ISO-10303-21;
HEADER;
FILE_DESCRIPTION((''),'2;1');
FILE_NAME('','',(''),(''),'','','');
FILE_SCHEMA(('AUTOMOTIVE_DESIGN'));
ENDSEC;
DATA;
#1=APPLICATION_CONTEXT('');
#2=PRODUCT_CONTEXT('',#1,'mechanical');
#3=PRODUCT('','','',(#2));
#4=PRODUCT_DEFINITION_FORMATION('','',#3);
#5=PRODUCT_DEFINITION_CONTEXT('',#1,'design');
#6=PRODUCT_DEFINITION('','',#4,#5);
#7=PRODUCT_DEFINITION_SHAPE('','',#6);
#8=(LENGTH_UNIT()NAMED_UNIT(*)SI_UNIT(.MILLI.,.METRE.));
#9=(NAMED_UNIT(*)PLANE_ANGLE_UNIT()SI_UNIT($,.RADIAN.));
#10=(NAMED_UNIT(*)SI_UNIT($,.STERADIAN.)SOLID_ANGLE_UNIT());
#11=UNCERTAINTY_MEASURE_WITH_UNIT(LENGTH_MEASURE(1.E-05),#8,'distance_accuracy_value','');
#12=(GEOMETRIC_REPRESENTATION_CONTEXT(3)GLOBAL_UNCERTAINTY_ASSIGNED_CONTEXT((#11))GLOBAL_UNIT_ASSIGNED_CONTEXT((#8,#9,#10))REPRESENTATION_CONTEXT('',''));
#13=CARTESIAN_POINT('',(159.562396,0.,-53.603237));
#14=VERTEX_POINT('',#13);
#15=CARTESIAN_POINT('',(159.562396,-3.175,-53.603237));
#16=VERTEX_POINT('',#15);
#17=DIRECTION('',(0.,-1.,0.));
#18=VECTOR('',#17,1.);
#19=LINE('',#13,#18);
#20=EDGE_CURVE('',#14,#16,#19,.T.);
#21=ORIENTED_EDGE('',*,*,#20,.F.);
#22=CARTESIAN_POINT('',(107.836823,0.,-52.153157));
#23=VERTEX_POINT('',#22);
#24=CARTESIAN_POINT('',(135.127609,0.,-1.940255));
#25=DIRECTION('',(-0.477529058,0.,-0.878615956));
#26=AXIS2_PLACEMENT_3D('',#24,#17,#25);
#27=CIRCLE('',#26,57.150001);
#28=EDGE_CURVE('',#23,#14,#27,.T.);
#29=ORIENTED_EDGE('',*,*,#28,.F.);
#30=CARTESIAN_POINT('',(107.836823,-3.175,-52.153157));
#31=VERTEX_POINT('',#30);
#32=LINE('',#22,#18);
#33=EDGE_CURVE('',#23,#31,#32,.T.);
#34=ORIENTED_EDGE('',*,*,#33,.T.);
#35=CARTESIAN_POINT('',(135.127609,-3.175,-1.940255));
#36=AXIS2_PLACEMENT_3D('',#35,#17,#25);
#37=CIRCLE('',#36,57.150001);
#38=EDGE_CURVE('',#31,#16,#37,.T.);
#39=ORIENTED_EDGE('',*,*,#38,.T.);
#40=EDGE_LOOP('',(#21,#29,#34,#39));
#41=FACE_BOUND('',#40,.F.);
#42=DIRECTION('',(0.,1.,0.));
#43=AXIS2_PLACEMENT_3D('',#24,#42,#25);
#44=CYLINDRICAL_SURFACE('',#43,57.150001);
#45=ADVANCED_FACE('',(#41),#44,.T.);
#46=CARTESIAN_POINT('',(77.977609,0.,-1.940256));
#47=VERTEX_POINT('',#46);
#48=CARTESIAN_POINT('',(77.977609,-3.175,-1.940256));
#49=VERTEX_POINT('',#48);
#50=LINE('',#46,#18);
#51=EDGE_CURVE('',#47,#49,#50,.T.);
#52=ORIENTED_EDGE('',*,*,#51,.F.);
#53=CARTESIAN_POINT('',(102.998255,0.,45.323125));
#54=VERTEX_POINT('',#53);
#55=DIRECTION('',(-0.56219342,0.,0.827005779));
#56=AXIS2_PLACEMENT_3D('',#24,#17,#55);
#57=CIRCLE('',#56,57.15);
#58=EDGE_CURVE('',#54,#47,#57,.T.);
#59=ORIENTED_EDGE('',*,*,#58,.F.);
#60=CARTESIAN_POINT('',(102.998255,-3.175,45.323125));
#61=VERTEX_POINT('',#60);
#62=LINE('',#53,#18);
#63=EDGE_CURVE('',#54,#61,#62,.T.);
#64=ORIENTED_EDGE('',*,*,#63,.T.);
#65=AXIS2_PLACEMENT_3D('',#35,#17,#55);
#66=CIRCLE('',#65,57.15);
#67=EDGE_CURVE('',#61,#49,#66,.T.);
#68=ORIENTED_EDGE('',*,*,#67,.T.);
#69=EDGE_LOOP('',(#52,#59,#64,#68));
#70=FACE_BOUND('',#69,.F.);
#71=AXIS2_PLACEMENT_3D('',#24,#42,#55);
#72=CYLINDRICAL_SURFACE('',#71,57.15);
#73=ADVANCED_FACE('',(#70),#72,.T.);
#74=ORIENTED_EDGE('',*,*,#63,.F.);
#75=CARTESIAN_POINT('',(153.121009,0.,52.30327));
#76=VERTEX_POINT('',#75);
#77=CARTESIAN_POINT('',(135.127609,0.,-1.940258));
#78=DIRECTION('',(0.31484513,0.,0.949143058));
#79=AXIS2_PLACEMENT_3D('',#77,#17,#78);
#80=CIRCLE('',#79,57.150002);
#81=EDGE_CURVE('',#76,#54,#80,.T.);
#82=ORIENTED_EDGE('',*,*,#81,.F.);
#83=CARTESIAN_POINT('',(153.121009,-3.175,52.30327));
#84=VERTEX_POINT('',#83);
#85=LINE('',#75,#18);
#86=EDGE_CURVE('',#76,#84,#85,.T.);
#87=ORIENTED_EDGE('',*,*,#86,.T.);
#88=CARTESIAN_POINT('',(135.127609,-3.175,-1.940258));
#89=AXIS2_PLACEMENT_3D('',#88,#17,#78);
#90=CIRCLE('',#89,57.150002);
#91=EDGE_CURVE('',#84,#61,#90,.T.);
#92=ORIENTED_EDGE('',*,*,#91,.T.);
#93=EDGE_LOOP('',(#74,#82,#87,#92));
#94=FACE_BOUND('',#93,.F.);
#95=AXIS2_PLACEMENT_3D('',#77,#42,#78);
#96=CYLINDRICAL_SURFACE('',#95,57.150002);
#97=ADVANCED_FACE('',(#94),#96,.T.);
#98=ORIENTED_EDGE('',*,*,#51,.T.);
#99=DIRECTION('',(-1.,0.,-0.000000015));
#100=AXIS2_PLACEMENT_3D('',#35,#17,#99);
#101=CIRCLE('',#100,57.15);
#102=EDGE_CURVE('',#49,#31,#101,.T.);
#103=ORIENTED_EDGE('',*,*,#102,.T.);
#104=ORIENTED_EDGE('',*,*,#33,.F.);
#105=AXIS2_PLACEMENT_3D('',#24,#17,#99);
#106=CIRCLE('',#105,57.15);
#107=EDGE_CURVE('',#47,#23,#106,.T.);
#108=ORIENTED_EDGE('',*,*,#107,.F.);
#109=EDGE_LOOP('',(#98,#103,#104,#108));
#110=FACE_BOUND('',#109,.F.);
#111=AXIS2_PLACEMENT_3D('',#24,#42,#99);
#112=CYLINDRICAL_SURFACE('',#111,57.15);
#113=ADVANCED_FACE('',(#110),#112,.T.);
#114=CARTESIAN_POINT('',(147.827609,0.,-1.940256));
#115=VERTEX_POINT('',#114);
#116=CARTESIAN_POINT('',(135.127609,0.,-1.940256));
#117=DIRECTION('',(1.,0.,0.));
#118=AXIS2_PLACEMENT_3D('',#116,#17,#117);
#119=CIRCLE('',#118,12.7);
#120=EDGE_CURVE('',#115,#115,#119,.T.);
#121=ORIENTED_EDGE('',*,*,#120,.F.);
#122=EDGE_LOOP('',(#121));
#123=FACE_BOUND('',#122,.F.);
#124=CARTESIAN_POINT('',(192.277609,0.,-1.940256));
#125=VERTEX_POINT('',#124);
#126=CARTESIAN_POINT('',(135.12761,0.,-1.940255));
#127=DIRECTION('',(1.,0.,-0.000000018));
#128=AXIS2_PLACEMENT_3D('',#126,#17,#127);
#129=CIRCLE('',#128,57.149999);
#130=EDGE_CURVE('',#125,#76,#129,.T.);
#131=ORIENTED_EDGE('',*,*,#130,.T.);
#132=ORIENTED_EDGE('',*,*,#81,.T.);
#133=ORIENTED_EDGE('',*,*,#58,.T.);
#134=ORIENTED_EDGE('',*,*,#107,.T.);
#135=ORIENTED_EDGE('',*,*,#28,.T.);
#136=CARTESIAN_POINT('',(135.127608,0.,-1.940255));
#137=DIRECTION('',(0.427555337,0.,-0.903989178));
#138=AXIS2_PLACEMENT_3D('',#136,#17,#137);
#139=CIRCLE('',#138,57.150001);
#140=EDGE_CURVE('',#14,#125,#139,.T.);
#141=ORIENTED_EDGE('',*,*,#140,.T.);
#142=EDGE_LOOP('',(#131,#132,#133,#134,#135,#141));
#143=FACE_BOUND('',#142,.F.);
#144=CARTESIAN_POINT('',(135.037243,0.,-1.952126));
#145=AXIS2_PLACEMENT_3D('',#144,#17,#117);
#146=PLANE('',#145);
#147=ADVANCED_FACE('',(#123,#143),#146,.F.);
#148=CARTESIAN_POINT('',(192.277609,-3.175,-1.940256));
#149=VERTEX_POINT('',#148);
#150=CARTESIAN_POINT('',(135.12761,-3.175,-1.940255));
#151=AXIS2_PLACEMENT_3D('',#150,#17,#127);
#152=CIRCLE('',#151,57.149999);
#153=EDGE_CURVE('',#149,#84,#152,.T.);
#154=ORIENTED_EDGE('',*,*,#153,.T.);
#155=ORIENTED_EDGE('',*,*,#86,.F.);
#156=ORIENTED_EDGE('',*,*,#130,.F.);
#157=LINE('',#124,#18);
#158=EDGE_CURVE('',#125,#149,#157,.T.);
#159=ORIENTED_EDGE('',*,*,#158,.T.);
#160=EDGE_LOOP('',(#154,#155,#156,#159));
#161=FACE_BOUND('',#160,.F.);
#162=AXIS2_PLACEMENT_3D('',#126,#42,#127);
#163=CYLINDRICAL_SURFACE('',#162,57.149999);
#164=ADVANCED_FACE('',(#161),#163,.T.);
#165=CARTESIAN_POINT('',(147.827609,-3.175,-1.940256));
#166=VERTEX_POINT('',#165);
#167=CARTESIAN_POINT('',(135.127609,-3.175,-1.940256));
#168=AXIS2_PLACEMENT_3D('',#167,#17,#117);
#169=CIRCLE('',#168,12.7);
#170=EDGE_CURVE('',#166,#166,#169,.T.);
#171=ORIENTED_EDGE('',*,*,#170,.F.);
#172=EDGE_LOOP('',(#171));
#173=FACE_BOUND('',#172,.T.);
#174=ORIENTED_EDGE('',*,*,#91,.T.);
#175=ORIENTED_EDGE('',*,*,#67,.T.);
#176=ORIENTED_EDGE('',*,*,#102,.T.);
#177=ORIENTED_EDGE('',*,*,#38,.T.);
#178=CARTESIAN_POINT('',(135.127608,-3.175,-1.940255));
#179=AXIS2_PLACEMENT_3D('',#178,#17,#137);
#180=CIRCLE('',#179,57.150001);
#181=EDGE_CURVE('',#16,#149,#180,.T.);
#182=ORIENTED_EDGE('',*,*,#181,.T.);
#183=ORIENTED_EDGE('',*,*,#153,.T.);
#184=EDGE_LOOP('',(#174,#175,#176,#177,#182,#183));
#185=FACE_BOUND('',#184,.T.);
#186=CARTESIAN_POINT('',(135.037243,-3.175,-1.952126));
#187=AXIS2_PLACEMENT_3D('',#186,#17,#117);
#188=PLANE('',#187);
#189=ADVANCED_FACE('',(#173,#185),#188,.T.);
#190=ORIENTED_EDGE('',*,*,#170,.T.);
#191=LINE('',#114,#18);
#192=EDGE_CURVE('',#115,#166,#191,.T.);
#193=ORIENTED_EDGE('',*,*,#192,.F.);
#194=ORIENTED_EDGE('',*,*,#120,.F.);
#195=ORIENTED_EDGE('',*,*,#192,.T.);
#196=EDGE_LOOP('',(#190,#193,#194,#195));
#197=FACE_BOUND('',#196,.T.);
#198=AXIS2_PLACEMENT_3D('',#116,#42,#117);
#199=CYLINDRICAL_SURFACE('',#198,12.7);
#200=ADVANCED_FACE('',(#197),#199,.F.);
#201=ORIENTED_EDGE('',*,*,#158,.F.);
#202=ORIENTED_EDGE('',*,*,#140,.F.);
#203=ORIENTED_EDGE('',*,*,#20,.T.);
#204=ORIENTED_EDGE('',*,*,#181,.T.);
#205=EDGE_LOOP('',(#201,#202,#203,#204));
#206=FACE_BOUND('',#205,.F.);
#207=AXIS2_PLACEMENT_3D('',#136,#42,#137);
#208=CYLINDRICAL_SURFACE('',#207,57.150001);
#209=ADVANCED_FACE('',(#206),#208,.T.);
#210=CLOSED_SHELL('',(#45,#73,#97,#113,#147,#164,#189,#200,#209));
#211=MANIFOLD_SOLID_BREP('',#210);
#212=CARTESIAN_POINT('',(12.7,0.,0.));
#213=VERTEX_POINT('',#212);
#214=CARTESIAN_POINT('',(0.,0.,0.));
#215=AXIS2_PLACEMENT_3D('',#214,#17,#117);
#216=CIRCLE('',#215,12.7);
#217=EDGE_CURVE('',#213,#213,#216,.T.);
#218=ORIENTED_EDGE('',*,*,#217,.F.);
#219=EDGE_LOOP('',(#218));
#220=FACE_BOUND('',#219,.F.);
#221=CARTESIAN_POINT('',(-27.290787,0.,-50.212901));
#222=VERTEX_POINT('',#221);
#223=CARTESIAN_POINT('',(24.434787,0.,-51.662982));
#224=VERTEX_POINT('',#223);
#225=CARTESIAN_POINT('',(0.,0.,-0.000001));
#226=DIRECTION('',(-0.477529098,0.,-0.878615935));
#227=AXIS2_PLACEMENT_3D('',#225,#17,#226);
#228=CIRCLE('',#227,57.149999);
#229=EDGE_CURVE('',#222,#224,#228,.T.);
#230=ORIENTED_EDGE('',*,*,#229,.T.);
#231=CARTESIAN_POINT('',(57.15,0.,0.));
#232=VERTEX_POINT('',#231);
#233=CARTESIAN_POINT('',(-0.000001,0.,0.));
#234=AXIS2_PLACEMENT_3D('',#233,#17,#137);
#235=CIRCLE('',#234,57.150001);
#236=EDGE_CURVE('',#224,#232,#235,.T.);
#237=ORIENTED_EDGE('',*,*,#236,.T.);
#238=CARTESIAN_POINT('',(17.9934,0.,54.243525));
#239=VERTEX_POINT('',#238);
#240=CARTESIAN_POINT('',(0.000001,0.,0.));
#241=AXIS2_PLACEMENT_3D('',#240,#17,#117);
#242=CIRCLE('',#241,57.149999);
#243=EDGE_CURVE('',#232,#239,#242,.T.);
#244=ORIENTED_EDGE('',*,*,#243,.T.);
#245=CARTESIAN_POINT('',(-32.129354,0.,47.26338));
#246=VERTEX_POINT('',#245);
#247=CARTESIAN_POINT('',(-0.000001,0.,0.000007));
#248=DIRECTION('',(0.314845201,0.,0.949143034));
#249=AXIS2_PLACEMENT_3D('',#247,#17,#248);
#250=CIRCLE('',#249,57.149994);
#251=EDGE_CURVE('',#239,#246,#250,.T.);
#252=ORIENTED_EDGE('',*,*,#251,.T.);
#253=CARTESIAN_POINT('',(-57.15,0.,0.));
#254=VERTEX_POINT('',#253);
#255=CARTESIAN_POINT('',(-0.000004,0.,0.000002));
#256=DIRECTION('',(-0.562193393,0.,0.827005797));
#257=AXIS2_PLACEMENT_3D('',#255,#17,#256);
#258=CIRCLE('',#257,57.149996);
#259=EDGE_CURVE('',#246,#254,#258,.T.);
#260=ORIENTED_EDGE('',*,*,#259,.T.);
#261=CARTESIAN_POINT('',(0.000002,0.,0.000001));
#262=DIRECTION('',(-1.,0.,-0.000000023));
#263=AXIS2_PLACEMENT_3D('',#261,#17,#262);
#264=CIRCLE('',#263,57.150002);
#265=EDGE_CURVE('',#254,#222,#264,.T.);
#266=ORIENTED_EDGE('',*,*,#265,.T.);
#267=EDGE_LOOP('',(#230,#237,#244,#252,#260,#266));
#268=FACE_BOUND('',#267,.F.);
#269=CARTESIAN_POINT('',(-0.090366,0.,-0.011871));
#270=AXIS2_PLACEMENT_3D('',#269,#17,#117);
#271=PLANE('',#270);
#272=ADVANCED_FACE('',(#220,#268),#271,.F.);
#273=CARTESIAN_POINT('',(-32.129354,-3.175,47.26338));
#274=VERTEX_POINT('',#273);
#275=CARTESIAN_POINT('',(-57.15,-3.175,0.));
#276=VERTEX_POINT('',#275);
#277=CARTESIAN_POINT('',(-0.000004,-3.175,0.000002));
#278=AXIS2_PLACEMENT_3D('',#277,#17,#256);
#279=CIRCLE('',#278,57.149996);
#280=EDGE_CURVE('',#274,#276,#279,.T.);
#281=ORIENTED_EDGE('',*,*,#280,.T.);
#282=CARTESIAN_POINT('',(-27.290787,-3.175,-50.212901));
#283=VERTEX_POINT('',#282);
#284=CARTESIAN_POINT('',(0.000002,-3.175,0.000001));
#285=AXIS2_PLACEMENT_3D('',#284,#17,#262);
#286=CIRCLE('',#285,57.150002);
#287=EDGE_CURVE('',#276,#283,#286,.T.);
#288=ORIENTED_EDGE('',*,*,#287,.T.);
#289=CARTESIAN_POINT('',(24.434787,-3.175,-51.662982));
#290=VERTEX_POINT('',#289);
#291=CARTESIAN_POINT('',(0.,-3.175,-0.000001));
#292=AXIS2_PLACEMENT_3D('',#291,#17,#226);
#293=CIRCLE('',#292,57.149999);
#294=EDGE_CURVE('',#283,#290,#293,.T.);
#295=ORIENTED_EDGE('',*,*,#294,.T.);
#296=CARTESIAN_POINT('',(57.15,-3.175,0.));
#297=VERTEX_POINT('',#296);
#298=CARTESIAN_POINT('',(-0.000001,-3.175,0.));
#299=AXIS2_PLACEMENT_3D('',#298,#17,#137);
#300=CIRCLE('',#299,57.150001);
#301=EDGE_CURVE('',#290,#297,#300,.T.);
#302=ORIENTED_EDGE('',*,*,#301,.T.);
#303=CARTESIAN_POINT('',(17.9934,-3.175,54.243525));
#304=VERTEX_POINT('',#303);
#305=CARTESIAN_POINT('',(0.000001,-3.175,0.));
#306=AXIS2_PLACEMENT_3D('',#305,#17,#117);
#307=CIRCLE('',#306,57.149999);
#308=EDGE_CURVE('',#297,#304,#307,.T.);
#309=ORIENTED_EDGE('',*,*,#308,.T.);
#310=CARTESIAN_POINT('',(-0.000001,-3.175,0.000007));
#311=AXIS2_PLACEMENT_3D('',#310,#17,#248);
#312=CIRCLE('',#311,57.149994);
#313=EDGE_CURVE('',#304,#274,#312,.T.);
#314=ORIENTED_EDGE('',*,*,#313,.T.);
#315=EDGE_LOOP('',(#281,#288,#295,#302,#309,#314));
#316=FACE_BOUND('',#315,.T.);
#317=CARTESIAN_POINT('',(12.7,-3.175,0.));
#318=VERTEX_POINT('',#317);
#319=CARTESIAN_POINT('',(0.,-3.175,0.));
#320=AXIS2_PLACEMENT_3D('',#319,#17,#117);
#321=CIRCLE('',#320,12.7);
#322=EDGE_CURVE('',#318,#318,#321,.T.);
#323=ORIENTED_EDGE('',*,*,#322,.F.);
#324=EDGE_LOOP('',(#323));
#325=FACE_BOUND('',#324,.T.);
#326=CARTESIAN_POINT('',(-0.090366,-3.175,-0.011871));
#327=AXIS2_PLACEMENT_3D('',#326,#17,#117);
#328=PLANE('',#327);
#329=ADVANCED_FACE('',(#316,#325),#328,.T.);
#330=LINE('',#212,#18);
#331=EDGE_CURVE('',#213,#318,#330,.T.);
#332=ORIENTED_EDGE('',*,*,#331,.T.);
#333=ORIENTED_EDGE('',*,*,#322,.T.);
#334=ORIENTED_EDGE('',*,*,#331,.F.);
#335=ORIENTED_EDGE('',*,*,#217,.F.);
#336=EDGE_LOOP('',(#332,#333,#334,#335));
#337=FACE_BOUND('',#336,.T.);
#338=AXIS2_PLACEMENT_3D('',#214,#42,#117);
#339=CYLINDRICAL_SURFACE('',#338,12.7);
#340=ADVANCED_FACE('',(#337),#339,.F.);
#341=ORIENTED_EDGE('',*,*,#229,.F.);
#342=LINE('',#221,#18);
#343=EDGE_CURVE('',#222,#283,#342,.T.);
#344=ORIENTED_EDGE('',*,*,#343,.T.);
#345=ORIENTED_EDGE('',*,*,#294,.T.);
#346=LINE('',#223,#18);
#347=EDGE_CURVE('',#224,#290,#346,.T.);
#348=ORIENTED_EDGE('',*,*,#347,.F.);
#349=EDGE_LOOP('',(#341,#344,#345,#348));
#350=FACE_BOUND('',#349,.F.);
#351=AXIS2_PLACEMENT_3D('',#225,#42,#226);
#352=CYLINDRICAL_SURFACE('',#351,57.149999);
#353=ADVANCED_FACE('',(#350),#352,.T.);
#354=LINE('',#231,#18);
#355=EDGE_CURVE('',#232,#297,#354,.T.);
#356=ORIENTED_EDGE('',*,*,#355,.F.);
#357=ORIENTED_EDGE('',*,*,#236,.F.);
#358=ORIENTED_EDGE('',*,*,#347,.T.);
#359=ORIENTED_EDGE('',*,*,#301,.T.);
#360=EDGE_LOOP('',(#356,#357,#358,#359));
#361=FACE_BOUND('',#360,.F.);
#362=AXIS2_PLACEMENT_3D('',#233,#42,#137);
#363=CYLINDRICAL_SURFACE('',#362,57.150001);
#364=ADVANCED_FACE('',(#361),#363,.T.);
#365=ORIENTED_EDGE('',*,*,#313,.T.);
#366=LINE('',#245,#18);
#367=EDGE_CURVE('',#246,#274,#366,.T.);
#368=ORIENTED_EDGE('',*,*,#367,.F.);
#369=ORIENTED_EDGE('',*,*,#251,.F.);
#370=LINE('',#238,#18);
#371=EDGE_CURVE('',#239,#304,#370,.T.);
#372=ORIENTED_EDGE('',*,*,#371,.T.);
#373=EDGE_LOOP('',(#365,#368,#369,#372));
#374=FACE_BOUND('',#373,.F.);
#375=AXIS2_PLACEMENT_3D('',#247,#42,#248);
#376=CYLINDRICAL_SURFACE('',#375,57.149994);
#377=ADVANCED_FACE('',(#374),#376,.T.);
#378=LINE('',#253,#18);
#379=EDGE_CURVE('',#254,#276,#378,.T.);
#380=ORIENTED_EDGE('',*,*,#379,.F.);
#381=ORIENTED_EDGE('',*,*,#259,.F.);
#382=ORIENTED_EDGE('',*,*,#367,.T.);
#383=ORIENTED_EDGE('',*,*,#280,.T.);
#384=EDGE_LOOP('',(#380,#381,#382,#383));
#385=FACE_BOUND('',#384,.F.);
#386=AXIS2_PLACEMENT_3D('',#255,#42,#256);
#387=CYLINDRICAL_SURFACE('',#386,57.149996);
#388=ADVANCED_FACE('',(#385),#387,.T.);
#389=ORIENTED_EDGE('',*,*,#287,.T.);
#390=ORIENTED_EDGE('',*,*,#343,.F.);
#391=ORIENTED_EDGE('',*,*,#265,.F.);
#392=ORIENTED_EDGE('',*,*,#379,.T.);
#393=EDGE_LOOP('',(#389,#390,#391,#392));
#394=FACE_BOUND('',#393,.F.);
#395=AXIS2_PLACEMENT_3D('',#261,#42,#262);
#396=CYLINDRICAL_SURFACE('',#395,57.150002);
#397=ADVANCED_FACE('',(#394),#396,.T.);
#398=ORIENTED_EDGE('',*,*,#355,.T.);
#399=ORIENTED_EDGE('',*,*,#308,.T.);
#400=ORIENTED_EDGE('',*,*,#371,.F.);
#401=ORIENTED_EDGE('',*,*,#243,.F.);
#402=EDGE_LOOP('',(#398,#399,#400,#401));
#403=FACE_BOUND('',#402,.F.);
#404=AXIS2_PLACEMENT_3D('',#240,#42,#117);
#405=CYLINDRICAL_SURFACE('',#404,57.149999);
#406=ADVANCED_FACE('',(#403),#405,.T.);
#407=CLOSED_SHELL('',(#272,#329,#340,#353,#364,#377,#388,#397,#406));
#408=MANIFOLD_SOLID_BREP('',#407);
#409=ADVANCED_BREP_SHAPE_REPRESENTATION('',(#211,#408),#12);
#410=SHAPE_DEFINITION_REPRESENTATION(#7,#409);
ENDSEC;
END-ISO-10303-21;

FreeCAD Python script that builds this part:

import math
import FreeCAD as App
import Part
import Sketcher

V = App.Vector
Q = App.Units.Quantity

doc = App.newDocument("Part")
body = doc.addObject("PartDesign::Body", "Body")
body.AllowCompound = True

# Sketch on XZ plane
sketch1 = doc.addObject("Sketcher::SketchObject", "Sketch")
body.addObject(sketch1)
sketch1.AttachmentSupport = (doc.XZ_Plane, [""])
sketch1.MapMode = "FlatFace"
sketch1.addGeometry(Part.ArcOfCircle(Part.Circle(V(-0.000001, 0, 0), V(0, 0, 1), 57.150001), math.radians(-64.687485), math.radians(0)), False)
sketch1.addGeometry(Part.ArcOfCircle(Part.Circle(V(0.000001, 0, 0), V(0, 0, 1), 57.149999), math.radians(0), math.radians(71.648535)), False)
sketch1.addGeometry(Part.ArcOfCircle(Part.Circle(V(-0.000001, 0.000007, 0), V(0, 0, 1), 57.149994), math.radians(71.648531), math.radians(124.207626)), False)
sketch1.addGeometry(Part.ArcOfCircle(Part.Circle(V(-0.000004, 0.000002, 0), V(0, 0, 1), 57.149996), math.radians(124.207622), math.radians(180.000002)), False)
sketch1.addGeometry(Part.ArcOfCircle(Part.Circle(V(0.000002, 0.000001, 0), V(0, 0, 1), 57.150002), math.radians(-179.999999), math.radians(-118.524148)), False)
sketch1.addGeometry(Part.ArcOfCircle(Part.Circle(V(0, -0.000001, 0), V(0, 0, 1), 57.149999), math.radians(-118.524147), math.radians(-64.687485)), False)
sketch1.addGeometry(Part.Circle(V(0, 0, 0), V(0, 0, 1), 12.7), False)
sketch1.addGeometry(Part.ArcOfCircle(Part.Circle(V(135.127608, -1.940255, 0), V(0, 0, 1), 57.150001), math.radians(-64.687485), math.radians(-0.000001)), False)
sketch1.addGeometry(Part.ArcOfCircle(Part.Circle(V(135.12761, -1.940255, 0), V(0, 0, 1), 57.149999), math.radians(-0.000001), math.radians(71.648535)), False)
sketch1.addGeometry(Part.ArcOfCircle(Part.Circle(V(135.127609, -1.940258, 0), V(0, 0, 1), 57.150002), math.radians(71.648535), math.radians(124.207622)), False)
sketch1.addGeometry(Part.ArcOfCircle(Part.Circle(V(135.127609, -1.940255, 0), V(0, 0, 1), 57.15), math.radians(124.207623), math.radians(180.000001)), False)
sketch1.addGeometry(Part.ArcOfCircle(Part.Circle(V(135.127609, -1.940255, 0), V(0, 0, 1), 57.15), math.radians(-179.999999), math.radians(-118.524145)), False)
sketch1.addGeometry(Part.ArcOfCircle(Part.Circle(V(135.127609, -1.940255, 0), V(0, 0, 1), 57.150001), math.radians(-118.524145), math.radians(-64.687485)), False)
sketch1.addGeometry(Part.Circle(V(135.127609, -1.940256, 0), V(0, 0, 1), 12.7), False)
sketch1.addConstraint(Sketcher.Constraint("Tangent", 0, 2, 1, 1))
sketch1.addConstraint(Sketcher.Constraint("Tangent", 1, 2, 2, 1))
sketch1.addConstraint(Sketcher.Constraint("Tangent", 2, 2, 3, 1))
sketch1.addConstraint(Sketcher.Constraint("Tangent", 3, 2, 4, 1))
sketch1.addConstraint(Sketcher.Constraint("Tangent", 4, 2, 5, 1))
sketch1.addConstraint(Sketcher.Constraint("Tangent", 5, 2, 0, 1))
sketch1.addConstraint(Sketcher.Constraint("Tangent", 7, 2, 8, 1))
sketch1.addConstraint(Sketcher.Constraint("Tangent", 8, 2, 9, 1))
sketch1.addConstraint(Sketcher.Constraint("Tangent", 9, 2, 10, 1))
sketch1.addConstraint(Sketcher.Constraint("Tangent", 10, 2, 11, 1))
sketch1.addConstraint(Sketcher.Constraint("Tangent", 11, 2, 12, 1))
sketch1.addConstraint(Sketcher.Constraint("Tangent", 12, 2, 7, 1))
sketch1.addConstraint(Sketcher.Constraint("Coincident", 0, 3, -1, 1))
sketch1.addConstraint(Sketcher.Constraint("Coincident", 2, 3, -1, 1))
sketch1.addConstraint(Sketcher.Constraint("Coincident", 6, 3, -1, 1))
sketch1.addConstraint(Sketcher.Constraint("Coincident", 9, 3, 7, 3))
sketch1.addConstraint(Sketcher.Constraint("Coincident", 13, 3, 7, 3))
sketch1.addConstraint(Sketcher.Constraint("Equal", 0, 4))
sketch1.addConstraint(Sketcher.Constraint("Equal", 4, 7))
sketch1.addConstraint(Sketcher.Constraint("Equal", 8, 10))
sketch1.addConstraint(Sketcher.Constraint("Equal", 6, 13))
sketch1.addConstraint(Sketcher.Constraint("PointOnObject", 0, 2, -1))
sketch1.addConstraint(Sketcher.Constraint("PointOnObject", 3, 2, -1))
sketch1.addConstraint(Sketcher.Constraint("Horizontal", 13, 3, 7, 2))
sketch1.addConstraint(Sketcher.Constraint("Horizontal", 7, 2, 10, 2))
sketch1.addConstraint(Sketcher.Constraint("Diameter", 6, Q("1 in")))
sketch1.addConstraint(Sketcher.Constraint("Radius", 0, Q("2.25 in")))
sketch1.addConstraint(Sketcher.Constraint("DistanceX", -1, 1, 1, 2, 17.9934))
sketch1.addConstraint(Sketcher.Constraint("DistanceY", 4, 2, -1, 1, 50.212901))
sketch1.addConstraint(Sketcher.Constraint("DistanceX", 12, 3, 8, 2, 17.9934))
sketch1.addConstraint(Sketcher.Constraint("DistanceY", 11, 2, 9, 3, 50.212899))
sketch1.addConstraint(Sketcher.Constraint("DistanceX", -1, 1, 7, 3, 135.127608))
sketch1.addConstraint(Sketcher.Constraint("DistanceY", -1, 1, 2, 2, 47.26338))
sketch1.addConstraint(Sketcher.Constraint("DistanceY", 5, 2, -1, 1, 51.662982))
sketch1.addConstraint(Sketcher.Constraint("DistanceY", -1, 1, 8, 2, 52.30327))
sketch1.addConstraint(Sketcher.Constraint("DistanceY", 7, 3, 9, 2, 47.26338))
sketch1.addConstraint(Sketcher.Constraint("DistanceY", 12, 2, 11, 2, 1.45008))
pad1 = doc.addObject("PartDesign::Pad", "Pad")
body.addObject(pad1)
pad1.Profile = sketch1
pad1.Length = Q("0.125 in")

doc.recompute()
